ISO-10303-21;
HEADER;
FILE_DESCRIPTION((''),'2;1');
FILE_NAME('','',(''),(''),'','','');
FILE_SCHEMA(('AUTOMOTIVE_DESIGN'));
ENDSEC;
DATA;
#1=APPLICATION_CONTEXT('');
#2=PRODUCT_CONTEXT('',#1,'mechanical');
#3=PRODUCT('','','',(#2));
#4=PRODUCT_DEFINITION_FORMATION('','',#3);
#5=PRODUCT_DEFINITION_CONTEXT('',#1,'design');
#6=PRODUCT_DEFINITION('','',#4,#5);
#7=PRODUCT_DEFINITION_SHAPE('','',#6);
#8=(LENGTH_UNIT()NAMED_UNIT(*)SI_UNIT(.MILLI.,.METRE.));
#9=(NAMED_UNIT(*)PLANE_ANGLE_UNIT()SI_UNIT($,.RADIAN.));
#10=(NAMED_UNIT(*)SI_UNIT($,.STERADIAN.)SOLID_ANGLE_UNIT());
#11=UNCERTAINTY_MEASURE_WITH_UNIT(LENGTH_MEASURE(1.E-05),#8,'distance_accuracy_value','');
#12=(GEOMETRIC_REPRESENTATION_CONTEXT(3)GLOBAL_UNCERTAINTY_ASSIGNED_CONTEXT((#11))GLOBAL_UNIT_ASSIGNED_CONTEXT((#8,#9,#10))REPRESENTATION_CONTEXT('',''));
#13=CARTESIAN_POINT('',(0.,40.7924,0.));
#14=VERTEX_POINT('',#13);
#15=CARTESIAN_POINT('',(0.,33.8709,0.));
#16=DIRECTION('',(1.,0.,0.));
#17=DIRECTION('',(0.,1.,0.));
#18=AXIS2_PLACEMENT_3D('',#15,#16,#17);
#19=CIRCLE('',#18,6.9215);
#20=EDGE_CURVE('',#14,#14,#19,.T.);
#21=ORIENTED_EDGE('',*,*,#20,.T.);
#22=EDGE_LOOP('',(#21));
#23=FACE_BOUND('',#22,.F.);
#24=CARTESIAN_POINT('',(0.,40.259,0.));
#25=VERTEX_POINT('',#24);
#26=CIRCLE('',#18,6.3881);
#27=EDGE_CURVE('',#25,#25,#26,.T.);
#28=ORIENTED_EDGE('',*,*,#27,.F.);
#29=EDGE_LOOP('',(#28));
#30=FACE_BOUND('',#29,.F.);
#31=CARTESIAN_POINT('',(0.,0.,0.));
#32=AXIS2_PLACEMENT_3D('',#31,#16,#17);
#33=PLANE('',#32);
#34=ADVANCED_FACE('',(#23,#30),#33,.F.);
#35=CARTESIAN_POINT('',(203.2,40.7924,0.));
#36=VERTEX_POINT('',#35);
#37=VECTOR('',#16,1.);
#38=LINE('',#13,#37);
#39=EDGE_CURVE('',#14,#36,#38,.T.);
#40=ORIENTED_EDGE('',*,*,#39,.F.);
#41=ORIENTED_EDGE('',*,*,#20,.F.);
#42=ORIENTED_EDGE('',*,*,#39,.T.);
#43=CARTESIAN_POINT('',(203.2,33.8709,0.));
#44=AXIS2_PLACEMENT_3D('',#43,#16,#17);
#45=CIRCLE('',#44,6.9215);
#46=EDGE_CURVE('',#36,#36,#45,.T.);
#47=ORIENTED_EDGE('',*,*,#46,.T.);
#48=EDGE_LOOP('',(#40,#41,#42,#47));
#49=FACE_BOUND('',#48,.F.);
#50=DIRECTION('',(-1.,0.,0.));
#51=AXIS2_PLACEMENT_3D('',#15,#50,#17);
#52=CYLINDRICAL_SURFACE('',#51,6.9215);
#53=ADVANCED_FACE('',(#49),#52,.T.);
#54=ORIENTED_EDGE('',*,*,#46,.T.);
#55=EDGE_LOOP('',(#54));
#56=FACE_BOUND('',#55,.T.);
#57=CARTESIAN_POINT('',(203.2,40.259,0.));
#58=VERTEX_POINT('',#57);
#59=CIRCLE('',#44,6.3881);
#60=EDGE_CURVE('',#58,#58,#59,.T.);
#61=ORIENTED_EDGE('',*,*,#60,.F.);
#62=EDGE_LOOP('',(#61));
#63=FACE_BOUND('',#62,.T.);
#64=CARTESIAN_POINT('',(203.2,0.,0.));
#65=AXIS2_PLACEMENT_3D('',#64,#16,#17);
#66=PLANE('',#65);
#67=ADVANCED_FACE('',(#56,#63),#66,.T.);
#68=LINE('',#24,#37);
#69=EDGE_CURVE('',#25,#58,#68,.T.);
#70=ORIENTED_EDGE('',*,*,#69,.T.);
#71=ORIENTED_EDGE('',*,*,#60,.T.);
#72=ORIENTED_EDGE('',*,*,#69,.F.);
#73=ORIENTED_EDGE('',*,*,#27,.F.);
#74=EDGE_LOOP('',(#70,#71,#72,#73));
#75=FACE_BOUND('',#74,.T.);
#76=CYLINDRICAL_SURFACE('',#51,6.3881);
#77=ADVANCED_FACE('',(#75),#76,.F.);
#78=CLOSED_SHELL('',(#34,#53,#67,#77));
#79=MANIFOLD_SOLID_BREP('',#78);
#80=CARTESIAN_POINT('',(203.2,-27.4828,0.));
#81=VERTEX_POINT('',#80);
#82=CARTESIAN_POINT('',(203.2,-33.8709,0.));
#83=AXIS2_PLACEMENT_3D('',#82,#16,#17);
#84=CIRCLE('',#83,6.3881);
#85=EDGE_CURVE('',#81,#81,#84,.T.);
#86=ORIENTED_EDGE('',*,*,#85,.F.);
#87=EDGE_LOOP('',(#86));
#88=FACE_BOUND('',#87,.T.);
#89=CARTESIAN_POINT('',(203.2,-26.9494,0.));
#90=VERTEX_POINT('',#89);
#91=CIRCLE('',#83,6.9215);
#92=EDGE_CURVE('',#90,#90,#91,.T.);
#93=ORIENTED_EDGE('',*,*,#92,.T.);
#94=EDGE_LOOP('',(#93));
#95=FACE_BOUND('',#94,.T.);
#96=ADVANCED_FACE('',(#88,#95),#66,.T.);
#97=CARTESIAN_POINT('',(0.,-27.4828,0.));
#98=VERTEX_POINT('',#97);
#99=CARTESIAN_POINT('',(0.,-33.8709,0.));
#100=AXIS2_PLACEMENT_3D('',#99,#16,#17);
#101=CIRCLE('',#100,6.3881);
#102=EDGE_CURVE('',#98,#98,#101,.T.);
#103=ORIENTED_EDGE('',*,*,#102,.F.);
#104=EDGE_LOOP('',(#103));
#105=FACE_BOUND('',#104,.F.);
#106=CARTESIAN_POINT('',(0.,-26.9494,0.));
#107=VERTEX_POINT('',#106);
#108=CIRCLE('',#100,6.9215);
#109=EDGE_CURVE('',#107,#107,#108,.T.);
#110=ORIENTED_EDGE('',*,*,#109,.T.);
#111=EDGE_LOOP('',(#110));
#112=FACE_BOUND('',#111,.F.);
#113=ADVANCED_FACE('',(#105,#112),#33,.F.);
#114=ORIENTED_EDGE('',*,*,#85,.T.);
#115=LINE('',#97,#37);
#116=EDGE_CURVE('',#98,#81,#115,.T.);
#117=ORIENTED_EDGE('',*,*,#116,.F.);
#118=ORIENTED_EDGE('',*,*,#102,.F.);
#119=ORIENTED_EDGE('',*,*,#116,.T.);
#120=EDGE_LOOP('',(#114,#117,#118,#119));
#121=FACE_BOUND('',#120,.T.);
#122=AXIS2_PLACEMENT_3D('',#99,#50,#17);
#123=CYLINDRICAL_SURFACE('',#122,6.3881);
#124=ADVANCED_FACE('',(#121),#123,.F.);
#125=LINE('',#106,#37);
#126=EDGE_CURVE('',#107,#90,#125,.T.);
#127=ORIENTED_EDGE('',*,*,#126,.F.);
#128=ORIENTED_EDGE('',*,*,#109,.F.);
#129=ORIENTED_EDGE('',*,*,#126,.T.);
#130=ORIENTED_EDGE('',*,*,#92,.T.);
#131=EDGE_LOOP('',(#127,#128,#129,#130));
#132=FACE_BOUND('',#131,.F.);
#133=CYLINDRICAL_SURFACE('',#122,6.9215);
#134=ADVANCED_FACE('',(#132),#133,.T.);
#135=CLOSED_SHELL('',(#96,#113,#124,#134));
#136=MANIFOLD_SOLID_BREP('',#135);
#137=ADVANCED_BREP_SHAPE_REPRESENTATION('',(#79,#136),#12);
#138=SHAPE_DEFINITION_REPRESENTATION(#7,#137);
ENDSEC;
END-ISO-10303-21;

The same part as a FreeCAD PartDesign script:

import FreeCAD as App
import Part
import Sketcher
from FreeCAD import Vector
Q = App.Units.Quantity

doc = App.newDocument("Part")
body = doc.addObject("PartDesign::Body", "Body")
body.AllowCompound = True

# Sketch on YZ plane
sketch1 = body.newObject("Sketcher::SketchObject", "Sketch")
sketch1.AttachmentSupport = (doc.getObject("YZ_Plane"), [""])
sketch1.MapMode = "FlatFace"
sketch1.addGeometry(Part.Circle(Vector(34, 0, 0), Vector(0, 0, 1), 7), False)
sketch1.addGeometry(Part.Circle(Vector(34, 0, 0), Vector(0, 0, 1), 6), False)
sketch1.addGeometry(Part.Circle(Vector(-34, 0, 0), Vector(0, 0, 1), 7), False)
sketch1.addGeometry(Part.Circle(Vector(-34, 0, 0), Vector(0, 0, 1), 6), False)
sketch1.addConstraint(Sketcher.Constraint("Coincident", 1, 3, 0, 3))
sketch1.addConstraint(Sketcher.Constraint("Coincident", 3, 3, 2, 3))
sketch1.addConstraint(Sketcher.Constraint("Equal", 0, 2))
sketch1.addConstraint(Sketcher.Constraint("Equal", 1, 3))
sketch1.addConstraint(Sketcher.Constraint("Symmetric", 0, 3, 2, 3, -1, 1))
sketch1.addConstraint(Sketcher.Constraint("PointOnObject", 0, 3, -1))
sketch1.addConstraint(Sketcher.Constraint("Diameter", 0, Q("0.545 in")))
sketch1.addConstraint(Sketcher.Constraint("Diameter", 1, Q("0.503 in")))
sketch1.addConstraint(Sketcher.Constraint("DistanceX", 2, 3, 0, 3, Q("2.667 in")))
pad1 = body.newObject("PartDesign::Pad", "Pad")
pad1.Profile = sketch1
pad1.Length = Q("8 in")

doc.recompute()
